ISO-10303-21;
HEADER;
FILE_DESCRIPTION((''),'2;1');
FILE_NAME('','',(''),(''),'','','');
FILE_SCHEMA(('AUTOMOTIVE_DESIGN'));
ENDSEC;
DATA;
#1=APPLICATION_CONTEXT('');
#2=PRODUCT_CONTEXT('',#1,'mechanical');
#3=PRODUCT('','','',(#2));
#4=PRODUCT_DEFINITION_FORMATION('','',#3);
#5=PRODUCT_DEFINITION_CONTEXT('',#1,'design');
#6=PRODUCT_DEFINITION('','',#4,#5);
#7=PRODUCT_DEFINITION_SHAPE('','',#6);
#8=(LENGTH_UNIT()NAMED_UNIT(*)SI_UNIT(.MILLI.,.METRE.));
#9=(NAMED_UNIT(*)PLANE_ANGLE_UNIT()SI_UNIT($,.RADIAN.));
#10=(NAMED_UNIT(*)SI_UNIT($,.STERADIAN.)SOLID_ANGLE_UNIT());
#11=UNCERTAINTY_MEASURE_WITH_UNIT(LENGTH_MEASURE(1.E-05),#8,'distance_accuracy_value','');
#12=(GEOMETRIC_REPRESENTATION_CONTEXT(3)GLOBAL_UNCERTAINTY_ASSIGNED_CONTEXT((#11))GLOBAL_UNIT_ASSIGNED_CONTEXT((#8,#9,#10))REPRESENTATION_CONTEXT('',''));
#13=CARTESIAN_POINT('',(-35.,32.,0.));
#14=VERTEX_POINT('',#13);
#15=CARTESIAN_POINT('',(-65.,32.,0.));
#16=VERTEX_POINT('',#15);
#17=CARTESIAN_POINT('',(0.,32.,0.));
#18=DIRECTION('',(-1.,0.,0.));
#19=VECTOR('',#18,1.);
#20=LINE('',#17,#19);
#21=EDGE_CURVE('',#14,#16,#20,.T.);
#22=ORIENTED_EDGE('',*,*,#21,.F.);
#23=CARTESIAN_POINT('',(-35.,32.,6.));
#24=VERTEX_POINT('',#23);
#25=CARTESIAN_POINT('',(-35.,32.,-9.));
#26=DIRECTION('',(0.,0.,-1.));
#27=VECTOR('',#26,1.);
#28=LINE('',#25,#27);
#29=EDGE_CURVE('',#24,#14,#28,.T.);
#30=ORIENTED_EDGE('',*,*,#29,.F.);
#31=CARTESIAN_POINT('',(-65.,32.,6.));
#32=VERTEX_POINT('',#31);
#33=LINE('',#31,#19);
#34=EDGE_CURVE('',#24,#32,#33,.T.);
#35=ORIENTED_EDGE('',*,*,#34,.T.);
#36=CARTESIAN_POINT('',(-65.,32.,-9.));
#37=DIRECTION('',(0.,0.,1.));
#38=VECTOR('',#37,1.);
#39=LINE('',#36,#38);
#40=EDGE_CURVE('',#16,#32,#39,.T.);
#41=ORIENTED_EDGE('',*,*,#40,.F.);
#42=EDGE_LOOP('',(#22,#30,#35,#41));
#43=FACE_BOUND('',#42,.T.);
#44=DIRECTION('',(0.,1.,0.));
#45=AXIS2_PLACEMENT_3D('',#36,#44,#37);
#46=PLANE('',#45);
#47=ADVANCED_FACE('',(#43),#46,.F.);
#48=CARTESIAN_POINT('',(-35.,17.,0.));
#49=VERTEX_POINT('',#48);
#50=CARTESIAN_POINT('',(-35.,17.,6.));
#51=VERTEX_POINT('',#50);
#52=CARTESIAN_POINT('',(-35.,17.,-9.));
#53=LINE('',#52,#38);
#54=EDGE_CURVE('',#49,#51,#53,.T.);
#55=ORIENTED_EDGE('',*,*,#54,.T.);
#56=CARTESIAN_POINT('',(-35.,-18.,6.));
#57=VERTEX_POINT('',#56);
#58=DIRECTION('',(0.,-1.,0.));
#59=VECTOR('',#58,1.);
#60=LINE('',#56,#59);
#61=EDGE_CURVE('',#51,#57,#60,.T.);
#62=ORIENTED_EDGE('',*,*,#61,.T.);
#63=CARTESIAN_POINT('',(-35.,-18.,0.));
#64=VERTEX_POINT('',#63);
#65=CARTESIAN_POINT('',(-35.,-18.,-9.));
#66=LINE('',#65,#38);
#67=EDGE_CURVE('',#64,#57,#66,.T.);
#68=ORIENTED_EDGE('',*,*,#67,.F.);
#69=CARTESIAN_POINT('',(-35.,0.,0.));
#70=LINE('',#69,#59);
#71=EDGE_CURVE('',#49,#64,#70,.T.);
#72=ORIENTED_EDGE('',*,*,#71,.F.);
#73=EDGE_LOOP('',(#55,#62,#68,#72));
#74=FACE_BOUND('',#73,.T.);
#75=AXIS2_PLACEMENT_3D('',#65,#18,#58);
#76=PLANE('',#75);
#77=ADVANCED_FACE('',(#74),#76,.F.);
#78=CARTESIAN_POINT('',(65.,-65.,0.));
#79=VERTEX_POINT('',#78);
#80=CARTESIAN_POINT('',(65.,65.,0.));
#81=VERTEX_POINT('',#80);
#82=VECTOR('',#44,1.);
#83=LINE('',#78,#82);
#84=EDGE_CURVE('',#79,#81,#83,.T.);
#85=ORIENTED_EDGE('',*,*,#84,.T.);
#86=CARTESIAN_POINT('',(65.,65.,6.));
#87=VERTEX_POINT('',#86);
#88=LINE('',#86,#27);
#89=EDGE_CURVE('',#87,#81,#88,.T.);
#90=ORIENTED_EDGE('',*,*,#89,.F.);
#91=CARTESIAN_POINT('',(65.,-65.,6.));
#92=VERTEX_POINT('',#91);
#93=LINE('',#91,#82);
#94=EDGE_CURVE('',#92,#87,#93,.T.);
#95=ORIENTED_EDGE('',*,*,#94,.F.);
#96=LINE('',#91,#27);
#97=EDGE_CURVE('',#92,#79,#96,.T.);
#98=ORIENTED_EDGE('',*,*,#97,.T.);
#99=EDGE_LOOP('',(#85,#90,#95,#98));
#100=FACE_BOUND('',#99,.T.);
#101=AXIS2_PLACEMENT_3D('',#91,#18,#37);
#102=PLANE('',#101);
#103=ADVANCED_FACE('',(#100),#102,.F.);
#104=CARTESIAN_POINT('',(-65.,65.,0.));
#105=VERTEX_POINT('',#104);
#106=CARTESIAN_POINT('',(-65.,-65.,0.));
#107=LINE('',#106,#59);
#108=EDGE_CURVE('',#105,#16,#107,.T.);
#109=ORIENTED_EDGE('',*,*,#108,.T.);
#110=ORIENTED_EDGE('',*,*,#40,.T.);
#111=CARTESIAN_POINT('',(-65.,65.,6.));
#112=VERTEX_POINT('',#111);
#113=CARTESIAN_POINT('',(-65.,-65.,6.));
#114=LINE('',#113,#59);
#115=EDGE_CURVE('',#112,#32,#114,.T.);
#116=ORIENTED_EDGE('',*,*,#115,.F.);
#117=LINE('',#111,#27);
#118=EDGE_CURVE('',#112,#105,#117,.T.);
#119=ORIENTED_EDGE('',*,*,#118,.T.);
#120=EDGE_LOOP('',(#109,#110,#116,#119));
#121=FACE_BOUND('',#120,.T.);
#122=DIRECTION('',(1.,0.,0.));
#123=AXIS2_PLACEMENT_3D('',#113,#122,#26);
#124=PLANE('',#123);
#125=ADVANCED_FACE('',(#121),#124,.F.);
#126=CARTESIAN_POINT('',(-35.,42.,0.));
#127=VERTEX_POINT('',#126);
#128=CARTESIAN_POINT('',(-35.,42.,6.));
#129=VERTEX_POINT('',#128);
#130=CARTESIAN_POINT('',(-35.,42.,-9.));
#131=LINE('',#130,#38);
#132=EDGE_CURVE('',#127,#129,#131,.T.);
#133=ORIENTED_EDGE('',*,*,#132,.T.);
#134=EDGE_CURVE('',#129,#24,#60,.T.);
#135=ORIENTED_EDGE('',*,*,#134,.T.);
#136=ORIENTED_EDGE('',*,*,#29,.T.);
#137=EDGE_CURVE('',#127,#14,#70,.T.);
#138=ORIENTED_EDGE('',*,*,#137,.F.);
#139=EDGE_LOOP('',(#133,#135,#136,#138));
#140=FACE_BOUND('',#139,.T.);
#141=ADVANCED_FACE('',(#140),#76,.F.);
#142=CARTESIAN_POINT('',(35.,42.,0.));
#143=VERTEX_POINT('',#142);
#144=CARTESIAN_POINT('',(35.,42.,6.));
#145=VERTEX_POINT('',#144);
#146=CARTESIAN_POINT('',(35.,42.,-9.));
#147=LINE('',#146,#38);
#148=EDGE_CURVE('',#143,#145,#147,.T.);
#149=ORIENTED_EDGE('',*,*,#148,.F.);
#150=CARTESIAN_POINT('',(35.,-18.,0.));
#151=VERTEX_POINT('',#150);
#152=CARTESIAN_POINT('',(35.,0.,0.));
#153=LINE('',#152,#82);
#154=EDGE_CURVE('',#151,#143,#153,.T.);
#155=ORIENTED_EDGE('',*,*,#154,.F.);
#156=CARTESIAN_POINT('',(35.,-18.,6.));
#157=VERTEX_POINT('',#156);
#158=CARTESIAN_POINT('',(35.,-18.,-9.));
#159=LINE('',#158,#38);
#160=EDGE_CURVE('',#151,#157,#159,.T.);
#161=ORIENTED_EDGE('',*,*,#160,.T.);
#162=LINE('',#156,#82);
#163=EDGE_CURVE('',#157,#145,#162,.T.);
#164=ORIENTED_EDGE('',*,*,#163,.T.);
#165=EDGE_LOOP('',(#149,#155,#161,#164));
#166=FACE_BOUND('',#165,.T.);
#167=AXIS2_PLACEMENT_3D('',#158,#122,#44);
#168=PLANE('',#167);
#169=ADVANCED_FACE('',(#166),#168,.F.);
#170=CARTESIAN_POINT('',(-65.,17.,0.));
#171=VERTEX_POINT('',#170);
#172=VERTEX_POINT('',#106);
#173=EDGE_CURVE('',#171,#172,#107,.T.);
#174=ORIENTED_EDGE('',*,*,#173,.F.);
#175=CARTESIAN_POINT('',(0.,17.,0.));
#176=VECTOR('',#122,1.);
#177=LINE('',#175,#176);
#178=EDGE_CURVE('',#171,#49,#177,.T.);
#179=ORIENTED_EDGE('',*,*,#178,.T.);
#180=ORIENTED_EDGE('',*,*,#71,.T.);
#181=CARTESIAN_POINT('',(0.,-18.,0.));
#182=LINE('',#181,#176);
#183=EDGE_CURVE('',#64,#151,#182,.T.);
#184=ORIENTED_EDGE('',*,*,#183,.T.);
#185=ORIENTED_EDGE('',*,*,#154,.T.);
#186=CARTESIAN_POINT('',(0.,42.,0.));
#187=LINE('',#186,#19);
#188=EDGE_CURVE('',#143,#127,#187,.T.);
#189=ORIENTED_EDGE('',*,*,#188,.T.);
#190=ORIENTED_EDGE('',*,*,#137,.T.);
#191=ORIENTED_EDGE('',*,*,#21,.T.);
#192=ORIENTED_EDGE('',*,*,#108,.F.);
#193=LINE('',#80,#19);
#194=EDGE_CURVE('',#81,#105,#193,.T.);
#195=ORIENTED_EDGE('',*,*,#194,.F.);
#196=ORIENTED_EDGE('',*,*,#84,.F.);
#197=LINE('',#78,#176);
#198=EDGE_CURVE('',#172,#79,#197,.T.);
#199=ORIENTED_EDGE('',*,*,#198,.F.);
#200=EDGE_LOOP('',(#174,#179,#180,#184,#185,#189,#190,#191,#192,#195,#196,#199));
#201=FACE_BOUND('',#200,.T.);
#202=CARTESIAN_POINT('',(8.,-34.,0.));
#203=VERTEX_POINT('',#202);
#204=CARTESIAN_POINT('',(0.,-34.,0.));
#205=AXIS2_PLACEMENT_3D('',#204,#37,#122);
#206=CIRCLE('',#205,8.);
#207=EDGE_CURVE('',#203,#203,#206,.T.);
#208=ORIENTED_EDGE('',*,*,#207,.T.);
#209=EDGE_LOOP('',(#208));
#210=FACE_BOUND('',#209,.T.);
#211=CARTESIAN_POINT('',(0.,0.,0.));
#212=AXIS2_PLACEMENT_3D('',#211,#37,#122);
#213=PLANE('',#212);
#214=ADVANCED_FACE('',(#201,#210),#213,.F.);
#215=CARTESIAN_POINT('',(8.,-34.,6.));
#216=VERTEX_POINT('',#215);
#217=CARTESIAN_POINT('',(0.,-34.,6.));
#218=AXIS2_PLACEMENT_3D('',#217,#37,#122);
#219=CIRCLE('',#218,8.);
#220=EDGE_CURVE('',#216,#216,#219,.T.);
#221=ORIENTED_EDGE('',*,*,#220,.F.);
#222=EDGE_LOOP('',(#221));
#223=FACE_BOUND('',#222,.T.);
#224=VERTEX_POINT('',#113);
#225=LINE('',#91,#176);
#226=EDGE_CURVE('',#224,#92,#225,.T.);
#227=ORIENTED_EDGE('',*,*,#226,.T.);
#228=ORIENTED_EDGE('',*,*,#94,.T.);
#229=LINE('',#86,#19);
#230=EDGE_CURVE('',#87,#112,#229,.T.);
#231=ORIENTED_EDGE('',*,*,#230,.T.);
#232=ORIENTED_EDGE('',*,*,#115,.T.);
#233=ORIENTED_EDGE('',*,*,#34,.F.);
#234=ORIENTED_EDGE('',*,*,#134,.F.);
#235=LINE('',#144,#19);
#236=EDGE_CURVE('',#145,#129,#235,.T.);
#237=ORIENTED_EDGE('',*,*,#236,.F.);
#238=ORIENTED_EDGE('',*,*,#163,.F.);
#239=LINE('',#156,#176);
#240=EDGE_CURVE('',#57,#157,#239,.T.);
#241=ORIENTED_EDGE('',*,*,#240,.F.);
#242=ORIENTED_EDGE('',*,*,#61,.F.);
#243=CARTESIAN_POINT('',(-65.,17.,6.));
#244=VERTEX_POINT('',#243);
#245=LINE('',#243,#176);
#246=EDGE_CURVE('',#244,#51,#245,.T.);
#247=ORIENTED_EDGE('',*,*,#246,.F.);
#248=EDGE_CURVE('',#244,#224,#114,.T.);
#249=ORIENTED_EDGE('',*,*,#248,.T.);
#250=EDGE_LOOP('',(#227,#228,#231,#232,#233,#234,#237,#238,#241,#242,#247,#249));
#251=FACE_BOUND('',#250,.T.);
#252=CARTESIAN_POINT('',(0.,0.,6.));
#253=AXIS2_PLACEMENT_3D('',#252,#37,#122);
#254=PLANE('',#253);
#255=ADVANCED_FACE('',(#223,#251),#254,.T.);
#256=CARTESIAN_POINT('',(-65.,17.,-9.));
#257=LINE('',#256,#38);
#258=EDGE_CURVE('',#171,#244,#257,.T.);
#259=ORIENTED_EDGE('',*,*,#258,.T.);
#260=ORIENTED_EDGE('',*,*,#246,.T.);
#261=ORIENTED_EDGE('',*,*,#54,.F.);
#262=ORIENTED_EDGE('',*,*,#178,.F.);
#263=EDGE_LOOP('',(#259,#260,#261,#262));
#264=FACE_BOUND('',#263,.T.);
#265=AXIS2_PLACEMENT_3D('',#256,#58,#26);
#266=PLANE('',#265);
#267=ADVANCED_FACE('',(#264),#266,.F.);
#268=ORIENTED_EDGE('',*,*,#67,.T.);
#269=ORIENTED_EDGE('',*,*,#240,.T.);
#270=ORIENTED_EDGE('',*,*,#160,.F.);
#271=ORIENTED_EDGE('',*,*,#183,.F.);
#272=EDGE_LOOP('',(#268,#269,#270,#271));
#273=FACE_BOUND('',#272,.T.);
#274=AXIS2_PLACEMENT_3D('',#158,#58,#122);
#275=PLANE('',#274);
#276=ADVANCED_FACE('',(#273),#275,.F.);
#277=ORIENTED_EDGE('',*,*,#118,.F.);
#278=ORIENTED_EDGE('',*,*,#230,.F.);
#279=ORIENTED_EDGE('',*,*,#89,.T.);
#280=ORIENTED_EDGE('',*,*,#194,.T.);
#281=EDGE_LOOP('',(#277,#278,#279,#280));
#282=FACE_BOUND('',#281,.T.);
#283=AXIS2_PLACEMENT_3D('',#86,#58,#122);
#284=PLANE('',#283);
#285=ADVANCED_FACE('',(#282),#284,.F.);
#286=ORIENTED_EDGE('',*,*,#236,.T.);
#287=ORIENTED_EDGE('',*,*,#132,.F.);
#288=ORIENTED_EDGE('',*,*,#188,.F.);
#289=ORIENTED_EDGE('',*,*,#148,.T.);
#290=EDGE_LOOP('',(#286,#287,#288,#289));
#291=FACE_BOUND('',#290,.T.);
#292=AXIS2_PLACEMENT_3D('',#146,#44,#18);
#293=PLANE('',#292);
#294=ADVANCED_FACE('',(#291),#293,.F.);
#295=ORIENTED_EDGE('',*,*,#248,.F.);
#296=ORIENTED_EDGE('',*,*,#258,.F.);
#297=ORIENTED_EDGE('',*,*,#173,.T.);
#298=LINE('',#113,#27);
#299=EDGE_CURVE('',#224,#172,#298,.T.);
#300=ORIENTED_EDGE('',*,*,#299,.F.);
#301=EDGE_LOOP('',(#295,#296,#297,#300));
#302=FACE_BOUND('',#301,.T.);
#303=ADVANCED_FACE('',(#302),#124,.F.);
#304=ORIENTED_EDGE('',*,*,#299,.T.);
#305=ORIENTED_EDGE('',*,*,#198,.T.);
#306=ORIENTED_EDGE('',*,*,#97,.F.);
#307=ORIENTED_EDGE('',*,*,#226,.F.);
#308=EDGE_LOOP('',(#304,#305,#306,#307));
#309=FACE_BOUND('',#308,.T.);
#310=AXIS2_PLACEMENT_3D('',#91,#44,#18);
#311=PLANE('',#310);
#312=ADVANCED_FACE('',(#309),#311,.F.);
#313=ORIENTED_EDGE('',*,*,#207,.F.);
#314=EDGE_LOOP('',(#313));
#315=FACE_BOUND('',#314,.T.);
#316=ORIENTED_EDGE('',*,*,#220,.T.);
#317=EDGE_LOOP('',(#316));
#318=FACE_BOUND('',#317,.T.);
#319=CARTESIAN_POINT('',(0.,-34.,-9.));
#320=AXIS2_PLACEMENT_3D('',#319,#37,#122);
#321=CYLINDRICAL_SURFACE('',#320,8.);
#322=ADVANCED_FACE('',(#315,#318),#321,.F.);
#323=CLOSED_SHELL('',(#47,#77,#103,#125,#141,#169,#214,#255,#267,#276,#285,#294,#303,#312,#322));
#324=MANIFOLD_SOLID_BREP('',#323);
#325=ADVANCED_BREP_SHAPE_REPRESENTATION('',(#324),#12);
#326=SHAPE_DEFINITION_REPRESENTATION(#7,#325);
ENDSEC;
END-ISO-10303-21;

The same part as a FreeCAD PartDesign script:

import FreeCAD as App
import Part
import Sketcher

V = App.Vector
Q = App.Units.Quantity

doc = App.newDocument("Part")
params = doc.addObject("Spreadsheet::Sheet", "Params")
for row, (alias, value) in enumerate([
    ("sketch1_width", "130 mm"),
    ("pad1_length", "6 mm"),
    ("sketch2_width", "70 mm"),
    ("sketch2_height", "60 mm"),
    ("pocket1_length", "15 mm"),
    ("sketch3_diameter", "16 mm"),
    ("pocket2_length", "15 mm"),
    ("sketch4_width", "30 mm"),
    ("sketch4_height", "15 mm"),
    ("pocket3_length", "15 mm"),
], start=1):
    params.set(f"A{row}", alias)
    params.set(f"B{row}", "=" + value)
    params.setAlias(f"B{row}", alias)

body = doc.addObject("PartDesign::Body", "Body")

sketch1 = doc.addObject("Sketcher::SketchObject", "Sketch")
body.addObject(sketch1)
sketch1.AttachmentSupport = (doc.XY_Plane, [""])
sketch1.MapMode = "FlatFace"
sketch1.addGeometry([
    Part.LineSegment(V(-65, 65, 0), V(-65, -65, 0)),
    Part.LineSegment(V(-65, -65, 0), V(65, -65, 0)),
    Part.LineSegment(V(65, -65, 0), V(65, 65, 0)),
    Part.LineSegment(V(65, 65, 0), V(-65, 65, 0)),
], False)
sketch1.addConstraint([
    Sketcher.Constraint("Coincident", 0, 2, 1, 1),
    Sketcher.Constraint("Coincident", 1, 2, 2, 1),
    Sketcher.Constraint("Coincident", 2, 2, 3, 1),
    Sketcher.Constraint("Coincident", 3, 2, 0, 1),
    Sketcher.Constraint("Vertical", 0),
    Sketcher.Constraint("Horizontal", 1),
    Sketcher.Constraint("Vertical", 2),
    Sketcher.Constraint("Horizontal", 3),
    Sketcher.Constraint("Symmetric", 0, 2, 2, 2, -1, 1),
    Sketcher.Constraint("Equal", 3, 0),
    Sketcher.Constraint("DistanceX", 1, 1, 1, 2, Q("130 mm")),
])
sketch1.setExpression("Constraints[10]", "Params.sketch1_width")
pad1 = doc.addObject("PartDesign::Pad", "Pad")
body.addObject(pad1)
pad1.Profile = sketch1
pad1.setExpression("Length", "Params.pad1_length")

sketch2 = doc.addObject("Sketcher::SketchObject", "Sketch001")
body.addObject(sketch2)
sketch2.AttachmentSupport = (doc.XY_Plane, [""])
sketch2.MapMode = "FlatFace"
sketch2.AttachmentOffset = App.Placement(V(0, 0, 6), App.Rotation())
sketch2.addGeometry([
    Part.LineSegment(V(-35, 42, 0), V(-35, -18, 0)),
    Part.LineSegment(V(-35, -18, 0), V(35, -18, 0)),
    Part.LineSegment(V(35, -18, 0), V(35, 42, 0)),
    Part.LineSegment(V(35, 42, 0), V(-35, 42, 0)),
], False)
sketch2.addConstraint([
    Sketcher.Constraint("Coincident", 0, 2, 1, 1),
    Sketcher.Constraint("Coincident", 1, 2, 2, 1),
    Sketcher.Constraint("Coincident", 2, 2, 3, 1),
    Sketcher.Constraint("Coincident", 3, 2, 0, 1),
    Sketcher.Constraint("Vertical", 0),
    Sketcher.Constraint("Horizontal", 1),
    Sketcher.Constraint("Vertical", 2),
    Sketcher.Constraint("Horizontal", 3),
    Sketcher.Constraint("DistanceX", 1, 1, 1, 2, Q("70 mm")),
    Sketcher.Constraint("DistanceY", 0, 2, 0, 1, Q("60 mm")),
    Sketcher.Constraint("DistanceX", 0, 2, -1, 1, Q("35 mm")),
    Sketcher.Constraint("DistanceY", 0, 2, -1, 1, Q("18 mm")),
])
sketch2.setExpression("Constraints[8]", "Params.sketch2_width")
sketch2.setExpression("Constraints[9]", "Params.sketch2_height")
pocket1 = doc.addObject("PartDesign::Pocket", "Pocket")
body.addObject(pocket1)
pocket1.Profile = sketch2
pocket1.setExpression("Length", "Params.pocket1_length")

sketch3 = doc.addObject("Sketcher::SketchObject", "Sketch002")
body.addObject(sketch3)
sketch3.AttachmentSupport = (doc.XY_Plane, [""])
sketch3.MapMode = "FlatFace"
sketch3.AttachmentOffset = App.Placement(V(0, 0, 6), App.Rotation())
sketch3.addGeometry(Part.Circle(V(0, -34, 0), V(0, 0, 1), 8), False)
sketch3.addConstraint([
    Sketcher.Constraint("PointOnObject", 0, 3, -2),
    Sketcher.Constraint("Diameter", 0, Q("16 mm")),
    Sketcher.Constraint("DistanceY", 0, 3, -1, 1, Q("34 mm")),
])
sketch3.setExpression("Constraints[1]", "Params.sketch3_diameter")
pocket2 = doc.addObject("PartDesign::Pocket", "Pocket001")
body.addObject(pocket2)
pocket2.Profile = sketch3
pocket2.setExpression("Length", "Params.pocket2_length")

sketch4 = doc.addObject("Sketcher::SketchObject", "Sketch003")
body.addObject(sketch4)
sketch4.AttachmentSupport = (doc.XY_Plane, [""])
sketch4.MapMode = "FlatFace"
sketch4.AttachmentOffset = App.Placement(V(0, 0, 6), App.Rotation())
sketch4.addGeometry([
    Part.LineSegment(V(-65, 32, 0), V(-65, 17, 0)),
    Part.LineSegment(V(-65, 17, 0), V(-35, 17, 0)),
    Part.LineSegment(V(-35, 17, 0), V(-35, 32, 0)),
    Part.LineSegment(V(-35, 32, 0), V(-65, 32, 0)),
], False)
sketch4.addConstraint([
    Sketcher.Constraint("Coincident", 0, 2, 1, 1),
    Sketcher.Constraint("Coincident", 1, 2, 2, 1),
    Sketcher.Constraint("Coincident", 2, 2, 3, 1),
    Sketcher.Constraint("Coincident", 3, 2, 0, 1),
    Sketcher.Constraint("Vertical", 0),
    Sketcher.Constraint("Horizontal", 1),
    Sketcher.Constraint("Vertical", 2),
    Sketcher.Constraint("Horizontal", 3),
    Sketcher.Constraint("DistanceX", 1, 1, 1, 2, Q("30 mm")),
    Sketcher.Constraint("DistanceY", 0, 2, 0, 1, Q("15 mm")),
    Sketcher.Constraint("DistanceX", 0, 2, -1, 1, Q("65 mm")),
    Sketcher.Constraint("DistanceY", -1, 1, 0, 2, Q("17 mm")),
])
sketch4.setExpression("Constraints[8]", "Params.sketch4_width")
sketch4.setExpression("Constraints[9]", "Params.sketch4_height")
pocket3 = doc.addObject("PartDesign::Pocket", "Pocket002")
body.addObject(pocket3)
pocket3.Profile = sketch4
pocket3.setExpression("Length", "Params.pocket3_length")

doc.recompute()
